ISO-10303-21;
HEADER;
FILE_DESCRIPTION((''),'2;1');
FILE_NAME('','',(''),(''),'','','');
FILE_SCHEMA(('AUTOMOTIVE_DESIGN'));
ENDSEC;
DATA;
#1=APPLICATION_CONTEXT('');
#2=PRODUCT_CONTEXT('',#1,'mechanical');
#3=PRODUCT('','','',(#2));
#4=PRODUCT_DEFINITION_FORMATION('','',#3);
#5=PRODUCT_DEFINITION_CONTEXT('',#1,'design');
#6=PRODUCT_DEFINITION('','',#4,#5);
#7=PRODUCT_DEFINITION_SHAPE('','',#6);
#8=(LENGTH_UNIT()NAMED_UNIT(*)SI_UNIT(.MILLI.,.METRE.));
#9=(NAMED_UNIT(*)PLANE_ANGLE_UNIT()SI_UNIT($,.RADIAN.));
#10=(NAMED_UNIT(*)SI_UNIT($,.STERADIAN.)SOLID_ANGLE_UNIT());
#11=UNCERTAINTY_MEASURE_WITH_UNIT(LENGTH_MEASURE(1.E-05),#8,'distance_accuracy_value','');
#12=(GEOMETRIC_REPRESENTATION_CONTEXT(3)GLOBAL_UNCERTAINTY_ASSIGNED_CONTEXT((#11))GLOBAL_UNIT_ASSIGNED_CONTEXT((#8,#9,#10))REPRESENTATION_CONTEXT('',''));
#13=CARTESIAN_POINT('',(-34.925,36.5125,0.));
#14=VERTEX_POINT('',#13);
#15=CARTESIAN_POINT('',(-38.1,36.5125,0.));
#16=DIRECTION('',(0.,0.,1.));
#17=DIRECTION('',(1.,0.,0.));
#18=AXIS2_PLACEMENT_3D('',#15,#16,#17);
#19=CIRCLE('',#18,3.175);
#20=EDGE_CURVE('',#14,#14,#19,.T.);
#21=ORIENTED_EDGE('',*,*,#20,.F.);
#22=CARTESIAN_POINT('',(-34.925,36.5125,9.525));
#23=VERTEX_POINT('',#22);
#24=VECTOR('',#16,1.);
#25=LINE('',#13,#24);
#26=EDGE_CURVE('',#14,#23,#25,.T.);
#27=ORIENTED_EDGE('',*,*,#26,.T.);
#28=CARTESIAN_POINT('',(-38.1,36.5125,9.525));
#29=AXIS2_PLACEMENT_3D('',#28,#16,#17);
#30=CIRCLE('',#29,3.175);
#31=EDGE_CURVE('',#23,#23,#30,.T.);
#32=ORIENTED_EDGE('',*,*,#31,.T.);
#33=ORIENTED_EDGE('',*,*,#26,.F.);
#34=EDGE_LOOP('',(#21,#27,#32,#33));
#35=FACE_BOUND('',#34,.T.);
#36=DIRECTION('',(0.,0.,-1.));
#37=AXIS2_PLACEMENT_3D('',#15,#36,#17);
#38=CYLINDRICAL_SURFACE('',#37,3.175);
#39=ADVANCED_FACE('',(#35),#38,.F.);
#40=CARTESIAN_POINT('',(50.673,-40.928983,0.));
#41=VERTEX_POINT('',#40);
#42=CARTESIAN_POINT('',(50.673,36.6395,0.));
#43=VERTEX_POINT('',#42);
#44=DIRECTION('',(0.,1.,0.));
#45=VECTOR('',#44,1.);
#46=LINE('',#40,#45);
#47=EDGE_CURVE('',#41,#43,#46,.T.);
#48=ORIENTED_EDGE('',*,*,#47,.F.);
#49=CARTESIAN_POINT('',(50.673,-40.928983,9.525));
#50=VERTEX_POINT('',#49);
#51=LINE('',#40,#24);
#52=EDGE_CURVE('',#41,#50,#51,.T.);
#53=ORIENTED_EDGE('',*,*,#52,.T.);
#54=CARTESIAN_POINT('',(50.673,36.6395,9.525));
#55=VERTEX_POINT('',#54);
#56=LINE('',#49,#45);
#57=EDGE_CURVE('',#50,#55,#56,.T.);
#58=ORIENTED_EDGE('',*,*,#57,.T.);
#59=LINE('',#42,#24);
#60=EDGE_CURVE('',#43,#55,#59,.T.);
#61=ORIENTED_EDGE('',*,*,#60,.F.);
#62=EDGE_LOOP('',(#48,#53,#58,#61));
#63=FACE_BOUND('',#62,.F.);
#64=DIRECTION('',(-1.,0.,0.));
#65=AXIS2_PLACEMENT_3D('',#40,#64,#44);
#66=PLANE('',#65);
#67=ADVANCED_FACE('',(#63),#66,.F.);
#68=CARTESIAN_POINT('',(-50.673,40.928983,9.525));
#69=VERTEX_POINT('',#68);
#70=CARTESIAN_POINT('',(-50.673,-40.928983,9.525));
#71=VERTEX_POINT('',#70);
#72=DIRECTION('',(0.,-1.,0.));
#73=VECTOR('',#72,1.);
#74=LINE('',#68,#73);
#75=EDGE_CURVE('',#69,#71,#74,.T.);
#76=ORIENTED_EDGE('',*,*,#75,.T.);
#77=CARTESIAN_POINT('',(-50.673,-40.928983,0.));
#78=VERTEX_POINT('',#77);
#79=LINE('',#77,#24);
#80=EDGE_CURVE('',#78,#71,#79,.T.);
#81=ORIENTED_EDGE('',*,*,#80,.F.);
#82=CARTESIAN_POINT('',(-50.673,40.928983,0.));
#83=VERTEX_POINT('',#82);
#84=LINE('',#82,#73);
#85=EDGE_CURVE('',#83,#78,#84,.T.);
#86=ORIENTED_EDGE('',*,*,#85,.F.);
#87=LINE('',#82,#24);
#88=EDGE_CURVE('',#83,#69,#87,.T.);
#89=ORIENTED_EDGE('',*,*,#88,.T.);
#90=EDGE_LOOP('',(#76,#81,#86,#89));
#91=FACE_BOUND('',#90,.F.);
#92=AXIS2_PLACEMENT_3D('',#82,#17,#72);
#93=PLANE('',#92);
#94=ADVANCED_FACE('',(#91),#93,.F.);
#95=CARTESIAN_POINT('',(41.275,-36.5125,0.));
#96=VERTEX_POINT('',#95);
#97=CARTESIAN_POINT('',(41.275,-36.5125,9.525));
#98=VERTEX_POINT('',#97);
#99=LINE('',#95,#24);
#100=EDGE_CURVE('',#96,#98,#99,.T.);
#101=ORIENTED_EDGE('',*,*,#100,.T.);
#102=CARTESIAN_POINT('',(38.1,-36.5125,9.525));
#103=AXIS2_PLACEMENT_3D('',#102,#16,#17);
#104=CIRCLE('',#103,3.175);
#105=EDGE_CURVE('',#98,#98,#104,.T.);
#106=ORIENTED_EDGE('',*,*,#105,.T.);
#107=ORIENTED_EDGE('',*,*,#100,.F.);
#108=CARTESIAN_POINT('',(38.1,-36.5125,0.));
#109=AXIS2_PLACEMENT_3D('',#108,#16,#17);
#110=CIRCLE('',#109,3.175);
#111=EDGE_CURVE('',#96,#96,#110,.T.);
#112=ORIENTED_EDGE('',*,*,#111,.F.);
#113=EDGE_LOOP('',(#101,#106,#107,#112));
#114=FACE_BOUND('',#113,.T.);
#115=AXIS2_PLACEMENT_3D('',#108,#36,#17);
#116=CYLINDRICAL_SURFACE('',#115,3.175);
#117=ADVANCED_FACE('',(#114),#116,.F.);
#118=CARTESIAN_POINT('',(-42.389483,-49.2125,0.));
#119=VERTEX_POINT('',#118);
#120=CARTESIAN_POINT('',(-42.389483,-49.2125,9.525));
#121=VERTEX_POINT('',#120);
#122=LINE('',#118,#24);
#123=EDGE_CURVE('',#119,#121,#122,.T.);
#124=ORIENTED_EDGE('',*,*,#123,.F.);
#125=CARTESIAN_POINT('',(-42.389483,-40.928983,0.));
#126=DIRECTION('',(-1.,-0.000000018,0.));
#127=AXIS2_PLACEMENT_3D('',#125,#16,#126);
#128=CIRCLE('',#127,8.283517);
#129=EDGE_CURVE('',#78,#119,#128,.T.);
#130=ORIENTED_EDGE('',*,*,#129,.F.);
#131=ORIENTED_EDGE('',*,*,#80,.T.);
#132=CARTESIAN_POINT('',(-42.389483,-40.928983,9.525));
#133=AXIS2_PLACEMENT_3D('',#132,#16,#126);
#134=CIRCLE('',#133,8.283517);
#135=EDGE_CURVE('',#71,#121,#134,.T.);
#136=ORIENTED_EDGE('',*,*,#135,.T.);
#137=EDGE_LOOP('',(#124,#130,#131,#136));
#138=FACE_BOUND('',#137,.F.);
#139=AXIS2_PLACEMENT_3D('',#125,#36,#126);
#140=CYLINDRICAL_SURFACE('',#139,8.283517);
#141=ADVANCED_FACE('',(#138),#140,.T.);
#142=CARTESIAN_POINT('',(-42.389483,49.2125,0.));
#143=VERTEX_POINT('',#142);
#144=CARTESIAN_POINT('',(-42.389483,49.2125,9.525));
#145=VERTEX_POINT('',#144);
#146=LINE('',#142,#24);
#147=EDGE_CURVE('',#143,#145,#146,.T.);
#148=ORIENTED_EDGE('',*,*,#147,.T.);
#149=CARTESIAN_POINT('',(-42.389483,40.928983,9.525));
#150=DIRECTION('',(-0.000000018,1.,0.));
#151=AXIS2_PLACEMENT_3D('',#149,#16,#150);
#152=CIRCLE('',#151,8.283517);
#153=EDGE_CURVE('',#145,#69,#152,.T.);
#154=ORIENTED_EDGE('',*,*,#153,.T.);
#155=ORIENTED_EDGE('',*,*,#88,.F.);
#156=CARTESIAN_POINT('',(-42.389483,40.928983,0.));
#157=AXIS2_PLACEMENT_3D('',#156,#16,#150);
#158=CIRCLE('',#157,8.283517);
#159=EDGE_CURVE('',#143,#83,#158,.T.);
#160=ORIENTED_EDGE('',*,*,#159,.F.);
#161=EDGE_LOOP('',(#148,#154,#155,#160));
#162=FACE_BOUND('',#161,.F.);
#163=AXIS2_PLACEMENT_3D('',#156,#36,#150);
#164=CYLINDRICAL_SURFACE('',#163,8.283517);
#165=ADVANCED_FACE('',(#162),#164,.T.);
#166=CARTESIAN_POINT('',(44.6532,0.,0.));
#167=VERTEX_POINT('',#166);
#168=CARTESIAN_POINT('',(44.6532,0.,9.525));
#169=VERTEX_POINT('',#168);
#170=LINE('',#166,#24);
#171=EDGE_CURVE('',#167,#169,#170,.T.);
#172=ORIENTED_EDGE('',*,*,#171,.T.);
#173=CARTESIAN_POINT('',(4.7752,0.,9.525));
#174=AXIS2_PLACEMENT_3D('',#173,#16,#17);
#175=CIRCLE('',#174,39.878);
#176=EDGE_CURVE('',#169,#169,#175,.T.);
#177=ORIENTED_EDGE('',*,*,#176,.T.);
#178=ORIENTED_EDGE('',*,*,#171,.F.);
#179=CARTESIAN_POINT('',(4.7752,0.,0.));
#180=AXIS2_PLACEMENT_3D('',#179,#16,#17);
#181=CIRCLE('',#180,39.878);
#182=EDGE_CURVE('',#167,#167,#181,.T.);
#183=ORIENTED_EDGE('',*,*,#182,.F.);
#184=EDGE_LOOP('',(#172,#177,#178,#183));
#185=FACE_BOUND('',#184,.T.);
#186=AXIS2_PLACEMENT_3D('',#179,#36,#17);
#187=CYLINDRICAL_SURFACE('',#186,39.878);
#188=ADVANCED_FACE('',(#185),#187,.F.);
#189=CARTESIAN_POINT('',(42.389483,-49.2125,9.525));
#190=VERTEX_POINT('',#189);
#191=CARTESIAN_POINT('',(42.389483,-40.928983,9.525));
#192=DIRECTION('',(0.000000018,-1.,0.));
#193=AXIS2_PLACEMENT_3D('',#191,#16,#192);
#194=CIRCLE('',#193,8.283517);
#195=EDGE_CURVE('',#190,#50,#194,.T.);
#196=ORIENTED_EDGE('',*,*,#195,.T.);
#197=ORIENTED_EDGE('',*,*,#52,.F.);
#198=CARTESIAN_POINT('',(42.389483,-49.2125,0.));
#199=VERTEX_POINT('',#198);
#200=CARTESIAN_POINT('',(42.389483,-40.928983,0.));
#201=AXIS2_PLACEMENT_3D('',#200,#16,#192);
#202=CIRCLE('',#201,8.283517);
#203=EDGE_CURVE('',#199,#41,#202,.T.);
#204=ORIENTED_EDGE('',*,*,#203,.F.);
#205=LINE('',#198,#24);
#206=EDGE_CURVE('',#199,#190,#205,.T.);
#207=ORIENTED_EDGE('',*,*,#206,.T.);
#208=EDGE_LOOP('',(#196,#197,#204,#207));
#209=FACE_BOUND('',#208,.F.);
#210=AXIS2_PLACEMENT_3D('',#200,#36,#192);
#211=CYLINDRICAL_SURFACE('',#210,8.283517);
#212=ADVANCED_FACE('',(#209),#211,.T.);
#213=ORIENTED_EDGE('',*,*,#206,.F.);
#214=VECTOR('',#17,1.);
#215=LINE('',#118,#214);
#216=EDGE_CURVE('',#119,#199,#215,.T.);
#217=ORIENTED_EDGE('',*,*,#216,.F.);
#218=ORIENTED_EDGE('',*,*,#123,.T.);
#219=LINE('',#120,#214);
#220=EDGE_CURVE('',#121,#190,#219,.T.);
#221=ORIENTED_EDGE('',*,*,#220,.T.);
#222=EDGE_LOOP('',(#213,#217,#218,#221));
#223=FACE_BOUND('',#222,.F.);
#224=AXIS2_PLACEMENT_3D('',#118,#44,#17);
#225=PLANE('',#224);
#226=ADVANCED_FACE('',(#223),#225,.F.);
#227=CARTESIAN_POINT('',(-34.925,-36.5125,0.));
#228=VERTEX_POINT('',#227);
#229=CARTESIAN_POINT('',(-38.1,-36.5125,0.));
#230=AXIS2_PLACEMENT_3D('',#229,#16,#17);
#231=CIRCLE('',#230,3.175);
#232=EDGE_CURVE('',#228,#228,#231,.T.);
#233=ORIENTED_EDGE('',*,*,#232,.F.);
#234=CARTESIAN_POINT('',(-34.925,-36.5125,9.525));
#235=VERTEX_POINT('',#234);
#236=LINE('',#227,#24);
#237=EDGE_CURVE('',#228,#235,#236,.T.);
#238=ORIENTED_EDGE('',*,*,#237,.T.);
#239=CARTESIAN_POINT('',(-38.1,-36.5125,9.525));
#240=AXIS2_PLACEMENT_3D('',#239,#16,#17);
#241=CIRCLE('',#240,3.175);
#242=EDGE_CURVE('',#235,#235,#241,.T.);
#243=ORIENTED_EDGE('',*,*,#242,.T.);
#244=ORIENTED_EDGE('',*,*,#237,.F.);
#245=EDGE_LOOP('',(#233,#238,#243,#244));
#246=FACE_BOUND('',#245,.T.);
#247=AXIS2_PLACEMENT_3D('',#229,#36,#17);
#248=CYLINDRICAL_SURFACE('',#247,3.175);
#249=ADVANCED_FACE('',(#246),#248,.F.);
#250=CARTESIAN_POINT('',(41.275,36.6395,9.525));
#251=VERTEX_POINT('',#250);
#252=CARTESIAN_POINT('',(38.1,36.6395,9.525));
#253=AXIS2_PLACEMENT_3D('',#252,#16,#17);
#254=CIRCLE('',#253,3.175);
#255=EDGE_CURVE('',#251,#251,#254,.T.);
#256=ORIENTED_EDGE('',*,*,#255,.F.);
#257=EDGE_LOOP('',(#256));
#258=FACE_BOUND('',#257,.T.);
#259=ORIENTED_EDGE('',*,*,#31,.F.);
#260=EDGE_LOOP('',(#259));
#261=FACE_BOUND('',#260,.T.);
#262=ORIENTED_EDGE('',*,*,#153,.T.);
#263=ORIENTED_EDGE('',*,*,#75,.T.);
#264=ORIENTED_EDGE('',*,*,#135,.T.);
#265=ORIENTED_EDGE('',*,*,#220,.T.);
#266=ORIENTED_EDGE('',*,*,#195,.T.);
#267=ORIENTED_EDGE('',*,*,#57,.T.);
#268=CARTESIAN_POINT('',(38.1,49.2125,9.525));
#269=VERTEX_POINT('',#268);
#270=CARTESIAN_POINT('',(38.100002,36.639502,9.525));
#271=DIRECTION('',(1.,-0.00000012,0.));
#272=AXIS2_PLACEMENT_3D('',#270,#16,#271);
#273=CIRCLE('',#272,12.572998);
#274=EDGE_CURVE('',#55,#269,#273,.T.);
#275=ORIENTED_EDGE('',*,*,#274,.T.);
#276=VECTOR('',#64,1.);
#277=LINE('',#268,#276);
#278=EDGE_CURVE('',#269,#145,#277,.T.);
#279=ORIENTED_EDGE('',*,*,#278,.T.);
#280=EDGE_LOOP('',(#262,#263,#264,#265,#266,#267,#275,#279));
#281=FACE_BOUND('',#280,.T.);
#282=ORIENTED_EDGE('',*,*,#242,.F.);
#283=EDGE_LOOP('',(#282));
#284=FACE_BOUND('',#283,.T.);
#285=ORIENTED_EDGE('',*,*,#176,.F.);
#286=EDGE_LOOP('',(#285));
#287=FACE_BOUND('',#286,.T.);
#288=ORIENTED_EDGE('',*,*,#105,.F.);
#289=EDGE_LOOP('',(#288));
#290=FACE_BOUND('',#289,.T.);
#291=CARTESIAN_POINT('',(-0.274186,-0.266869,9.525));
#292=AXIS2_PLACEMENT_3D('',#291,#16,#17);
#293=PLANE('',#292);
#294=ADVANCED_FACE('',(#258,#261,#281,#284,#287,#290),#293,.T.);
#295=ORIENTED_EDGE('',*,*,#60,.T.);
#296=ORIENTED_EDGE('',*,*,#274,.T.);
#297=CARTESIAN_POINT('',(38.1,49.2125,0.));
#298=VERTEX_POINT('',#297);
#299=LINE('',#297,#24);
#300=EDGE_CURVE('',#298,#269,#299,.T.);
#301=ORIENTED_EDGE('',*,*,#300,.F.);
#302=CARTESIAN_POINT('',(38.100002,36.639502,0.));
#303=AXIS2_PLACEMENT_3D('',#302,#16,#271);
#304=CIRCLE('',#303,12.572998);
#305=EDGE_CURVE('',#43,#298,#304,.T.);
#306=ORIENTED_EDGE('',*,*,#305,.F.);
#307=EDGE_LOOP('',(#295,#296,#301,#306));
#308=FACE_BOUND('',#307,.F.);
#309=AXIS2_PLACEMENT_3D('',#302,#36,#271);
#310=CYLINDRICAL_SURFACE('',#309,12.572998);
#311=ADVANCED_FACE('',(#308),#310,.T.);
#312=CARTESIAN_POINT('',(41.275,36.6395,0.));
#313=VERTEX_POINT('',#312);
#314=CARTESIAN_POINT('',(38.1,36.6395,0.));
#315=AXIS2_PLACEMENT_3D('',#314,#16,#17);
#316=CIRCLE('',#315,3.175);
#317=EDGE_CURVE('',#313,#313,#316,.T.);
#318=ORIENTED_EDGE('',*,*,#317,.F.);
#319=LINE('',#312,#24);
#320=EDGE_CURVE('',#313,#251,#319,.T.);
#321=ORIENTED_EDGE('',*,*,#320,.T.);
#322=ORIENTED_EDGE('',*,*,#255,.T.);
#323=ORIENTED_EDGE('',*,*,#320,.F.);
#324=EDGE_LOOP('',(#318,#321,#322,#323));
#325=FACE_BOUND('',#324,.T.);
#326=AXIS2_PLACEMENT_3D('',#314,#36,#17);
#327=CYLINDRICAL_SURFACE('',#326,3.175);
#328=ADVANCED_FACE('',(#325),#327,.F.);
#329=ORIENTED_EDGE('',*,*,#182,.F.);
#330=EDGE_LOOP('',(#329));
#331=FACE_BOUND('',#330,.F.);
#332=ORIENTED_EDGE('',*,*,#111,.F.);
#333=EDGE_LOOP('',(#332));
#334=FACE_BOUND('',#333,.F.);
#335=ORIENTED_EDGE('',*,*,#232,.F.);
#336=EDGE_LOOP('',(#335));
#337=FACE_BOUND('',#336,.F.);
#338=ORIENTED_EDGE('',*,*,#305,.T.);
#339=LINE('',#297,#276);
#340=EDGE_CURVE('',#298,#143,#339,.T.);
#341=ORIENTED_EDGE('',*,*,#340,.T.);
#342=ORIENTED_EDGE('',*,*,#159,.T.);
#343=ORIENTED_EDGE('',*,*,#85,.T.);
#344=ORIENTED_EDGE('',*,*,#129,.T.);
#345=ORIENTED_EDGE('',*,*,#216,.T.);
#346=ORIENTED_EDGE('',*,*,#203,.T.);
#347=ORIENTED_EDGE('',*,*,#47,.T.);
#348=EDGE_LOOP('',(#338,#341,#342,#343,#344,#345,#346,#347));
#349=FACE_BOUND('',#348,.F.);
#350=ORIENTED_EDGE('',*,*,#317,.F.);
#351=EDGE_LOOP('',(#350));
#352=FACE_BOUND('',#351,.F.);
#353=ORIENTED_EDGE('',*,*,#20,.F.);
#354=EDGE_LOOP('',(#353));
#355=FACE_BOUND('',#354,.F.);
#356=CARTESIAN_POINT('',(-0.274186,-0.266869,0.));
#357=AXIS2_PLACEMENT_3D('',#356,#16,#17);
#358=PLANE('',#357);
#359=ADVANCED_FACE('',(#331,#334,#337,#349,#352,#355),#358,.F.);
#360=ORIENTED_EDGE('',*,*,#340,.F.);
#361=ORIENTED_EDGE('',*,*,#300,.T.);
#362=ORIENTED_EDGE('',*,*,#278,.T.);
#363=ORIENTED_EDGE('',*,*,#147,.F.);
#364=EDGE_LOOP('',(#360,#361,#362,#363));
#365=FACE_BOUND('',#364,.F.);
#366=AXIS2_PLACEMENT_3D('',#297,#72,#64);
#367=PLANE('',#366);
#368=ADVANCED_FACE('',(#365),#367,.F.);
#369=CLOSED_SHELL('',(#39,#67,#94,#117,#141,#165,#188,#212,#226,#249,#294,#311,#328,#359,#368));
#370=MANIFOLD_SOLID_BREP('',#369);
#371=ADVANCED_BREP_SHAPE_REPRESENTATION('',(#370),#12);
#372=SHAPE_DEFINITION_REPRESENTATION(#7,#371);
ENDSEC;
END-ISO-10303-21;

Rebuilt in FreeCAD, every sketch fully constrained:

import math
import FreeCAD as App
import Part
import Sketcher

V = App.Vector
Q = App.Units.Quantity

doc = App.newDocument("Part")
body = doc.addObject("PartDesign::Body", "Body")

sketch1 = body.newObject("Sketcher::SketchObject", "Sketch")
sketch1.AttachmentSupport = (doc.getObject("XY_Plane"), [""])
sketch1.MapMode = "FlatFace"
sketch1.addGeometry(Part.LineSegment(V(38.1, 49.2125, 0), V(-42.389483, 49.2125, 0)), False)
sketch1.addGeometry(Part.ArcOfCircle(Part.Circle(V(-42.389483, 40.928983, 0), V(0, 0, 1), 8.283517), math.radians(90.000001), math.radians(179.999999)), False)
sketch1.addGeometry(Part.LineSegment(V(-50.673, 40.928983, 0), V(-50.673, -40.928983, 0)), False)
sketch1.addGeometry(Part.ArcOfCircle(Part.Circle(V(-42.389483, -40.928983, 0), V(0, 0, 1), 8.283517), math.radians(-179.999999), math.radians(-90.000001)), False)
sketch1.addGeometry(Part.LineSegment(V(-42.389483, -49.2125, 0), V(42.389483, -49.2125, 0)), False)
sketch1.addGeometry(Part.ArcOfCircle(Part.Circle(V(42.389483, -40.928983, 0), V(0, 0, 1), 8.283517), math.radians(-89.999999), math.radians(-0.000001)), False)
sketch1.addGeometry(Part.LineSegment(V(50.673, -40.928983, 0), V(50.673, 36.6395, 0)), False)
sketch1.addGeometry(Part.ArcOfCircle(Part.Circle(V(38.100002, 36.639502, 0), V(0, 0, 1), 12.572998), math.radians(-0.000007), math.radians(90.000007)), False)
sketch1.addGeometry(Part.Circle(V(-38.1, -36.5125, 0), V(0, 0, 1), 3.175), False)
sketch1.addGeometry(Part.Circle(V(38.1, -36.5125, 0), V(0, 0, 1), 3.175), False)
sketch1.addGeometry(Part.Circle(V(-38.1, 36.5125, 0), V(0, 0, 1), 3.175), False)
sketch1.addGeometry(Part.Circle(V(4.7752, 0, 0), V(0, 0, 1), 39.878), False)
sketch1.addGeometry(Part.Circle(V(38.1, 36.6395, 0), V(0, 0, 1), 3.175), False)
sketch1.addConstraint(Sketcher.Constraint("Tangent", 0, 2, 1, 1))
sketch1.addConstraint(Sketcher.Constraint("Tangent", 1, 2, 2, 1))
sketch1.addConstraint(Sketcher.Constraint("Tangent", 2, 2, 3, 1))
sketch1.addConstraint(Sketcher.Constraint("Tangent", 3, 2, 4, 1))
sketch1.addConstraint(Sketcher.Constraint("Tangent", 4, 2, 5, 1))
sketch1.addConstraint(Sketcher.Constraint("Tangent", 5, 2, 6, 1))
sketch1.addConstraint(Sketcher.Constraint("Tangent", 6, 2, 7, 1))
sketch1.addConstraint(Sketcher.Constraint("Tangent", 7, 2, 0, 1))
sketch1.addConstraint(Sketcher.Constraint("Horizontal", 0))
sketch1.addConstraint(Sketcher.Constraint("Vertical", 2))
sketch1.addConstraint(Sketcher.Constraint("Horizontal", 4))
sketch1.addConstraint(Sketcher.Constraint("Vertical", 6))
sketch1.addConstraint(Sketcher.Constraint("Coincident", 12, 3, 7, 3))
sketch1.addConstraint(Sketcher.Constraint("Equal", 1, 3))
sketch1.addConstraint(Sketcher.Constraint("Equal", 3, 5))
sketch1.addConstraint(Sketcher.Constraint("Equal", 8, 9))
sketch1.addConstraint(Sketcher.Constraint("Equal", 9, 10))
sketch1.addConstraint(Sketcher.Constraint("Equal", 10, 12))
sketch1.addConstraint(Sketcher.Constraint("Symmetric", 1, 3, 5, 3, -1, 1))
sketch1.addConstraint(Sketcher.Constraint("Symmetric", 9, 3, 10, 3, -1, 1))
sketch1.addConstraint(Sketcher.Constraint("Symmetric", 8, 3, 9, 3, -2))
sketch1.addConstraint(Sketcher.Constraint("PointOnObject", 11, 3, -1))
sketch1.addConstraint(Sketcher.Constraint("Vertical", 7, 3, 9, 3))
sketch1.addConstraint(Sketcher.Constraint("Diameter", 8, Q("0.25 in")))
sketch1.addConstraint(Sketcher.Constraint("Diameter", 11, Q("3.14 in")))
sketch1.addConstraint(Sketcher.Constraint("Radius", 7, Q("0.4949999 in")))
sketch1.addConstraint(Sketcher.Constraint("DistanceX", 8, 3, 7, 3, Q("3.0000001 in")))
sketch1.addConstraint(Sketcher.Constraint("DistanceY", 10, 3, 0, 2, Q("0.5 in")))
sketch1.addConstraint(Sketcher.Constraint("DistanceY", 8, 3, 7, 3, Q("2.8800001 in")))
sketch1.addConstraint(Sketcher.Constraint("DistanceX", -1, 1, 11, 3, Q("0.188 in")))
sketch1.addConstraint(Sketcher.Constraint("Radius", 1, 8.283517))
pad1 = body.newObject("PartDesign::Pad", "Pad")
pad1.Profile = sketch1
pad1.Length = Q("0.375 in")

doc.recompute()
